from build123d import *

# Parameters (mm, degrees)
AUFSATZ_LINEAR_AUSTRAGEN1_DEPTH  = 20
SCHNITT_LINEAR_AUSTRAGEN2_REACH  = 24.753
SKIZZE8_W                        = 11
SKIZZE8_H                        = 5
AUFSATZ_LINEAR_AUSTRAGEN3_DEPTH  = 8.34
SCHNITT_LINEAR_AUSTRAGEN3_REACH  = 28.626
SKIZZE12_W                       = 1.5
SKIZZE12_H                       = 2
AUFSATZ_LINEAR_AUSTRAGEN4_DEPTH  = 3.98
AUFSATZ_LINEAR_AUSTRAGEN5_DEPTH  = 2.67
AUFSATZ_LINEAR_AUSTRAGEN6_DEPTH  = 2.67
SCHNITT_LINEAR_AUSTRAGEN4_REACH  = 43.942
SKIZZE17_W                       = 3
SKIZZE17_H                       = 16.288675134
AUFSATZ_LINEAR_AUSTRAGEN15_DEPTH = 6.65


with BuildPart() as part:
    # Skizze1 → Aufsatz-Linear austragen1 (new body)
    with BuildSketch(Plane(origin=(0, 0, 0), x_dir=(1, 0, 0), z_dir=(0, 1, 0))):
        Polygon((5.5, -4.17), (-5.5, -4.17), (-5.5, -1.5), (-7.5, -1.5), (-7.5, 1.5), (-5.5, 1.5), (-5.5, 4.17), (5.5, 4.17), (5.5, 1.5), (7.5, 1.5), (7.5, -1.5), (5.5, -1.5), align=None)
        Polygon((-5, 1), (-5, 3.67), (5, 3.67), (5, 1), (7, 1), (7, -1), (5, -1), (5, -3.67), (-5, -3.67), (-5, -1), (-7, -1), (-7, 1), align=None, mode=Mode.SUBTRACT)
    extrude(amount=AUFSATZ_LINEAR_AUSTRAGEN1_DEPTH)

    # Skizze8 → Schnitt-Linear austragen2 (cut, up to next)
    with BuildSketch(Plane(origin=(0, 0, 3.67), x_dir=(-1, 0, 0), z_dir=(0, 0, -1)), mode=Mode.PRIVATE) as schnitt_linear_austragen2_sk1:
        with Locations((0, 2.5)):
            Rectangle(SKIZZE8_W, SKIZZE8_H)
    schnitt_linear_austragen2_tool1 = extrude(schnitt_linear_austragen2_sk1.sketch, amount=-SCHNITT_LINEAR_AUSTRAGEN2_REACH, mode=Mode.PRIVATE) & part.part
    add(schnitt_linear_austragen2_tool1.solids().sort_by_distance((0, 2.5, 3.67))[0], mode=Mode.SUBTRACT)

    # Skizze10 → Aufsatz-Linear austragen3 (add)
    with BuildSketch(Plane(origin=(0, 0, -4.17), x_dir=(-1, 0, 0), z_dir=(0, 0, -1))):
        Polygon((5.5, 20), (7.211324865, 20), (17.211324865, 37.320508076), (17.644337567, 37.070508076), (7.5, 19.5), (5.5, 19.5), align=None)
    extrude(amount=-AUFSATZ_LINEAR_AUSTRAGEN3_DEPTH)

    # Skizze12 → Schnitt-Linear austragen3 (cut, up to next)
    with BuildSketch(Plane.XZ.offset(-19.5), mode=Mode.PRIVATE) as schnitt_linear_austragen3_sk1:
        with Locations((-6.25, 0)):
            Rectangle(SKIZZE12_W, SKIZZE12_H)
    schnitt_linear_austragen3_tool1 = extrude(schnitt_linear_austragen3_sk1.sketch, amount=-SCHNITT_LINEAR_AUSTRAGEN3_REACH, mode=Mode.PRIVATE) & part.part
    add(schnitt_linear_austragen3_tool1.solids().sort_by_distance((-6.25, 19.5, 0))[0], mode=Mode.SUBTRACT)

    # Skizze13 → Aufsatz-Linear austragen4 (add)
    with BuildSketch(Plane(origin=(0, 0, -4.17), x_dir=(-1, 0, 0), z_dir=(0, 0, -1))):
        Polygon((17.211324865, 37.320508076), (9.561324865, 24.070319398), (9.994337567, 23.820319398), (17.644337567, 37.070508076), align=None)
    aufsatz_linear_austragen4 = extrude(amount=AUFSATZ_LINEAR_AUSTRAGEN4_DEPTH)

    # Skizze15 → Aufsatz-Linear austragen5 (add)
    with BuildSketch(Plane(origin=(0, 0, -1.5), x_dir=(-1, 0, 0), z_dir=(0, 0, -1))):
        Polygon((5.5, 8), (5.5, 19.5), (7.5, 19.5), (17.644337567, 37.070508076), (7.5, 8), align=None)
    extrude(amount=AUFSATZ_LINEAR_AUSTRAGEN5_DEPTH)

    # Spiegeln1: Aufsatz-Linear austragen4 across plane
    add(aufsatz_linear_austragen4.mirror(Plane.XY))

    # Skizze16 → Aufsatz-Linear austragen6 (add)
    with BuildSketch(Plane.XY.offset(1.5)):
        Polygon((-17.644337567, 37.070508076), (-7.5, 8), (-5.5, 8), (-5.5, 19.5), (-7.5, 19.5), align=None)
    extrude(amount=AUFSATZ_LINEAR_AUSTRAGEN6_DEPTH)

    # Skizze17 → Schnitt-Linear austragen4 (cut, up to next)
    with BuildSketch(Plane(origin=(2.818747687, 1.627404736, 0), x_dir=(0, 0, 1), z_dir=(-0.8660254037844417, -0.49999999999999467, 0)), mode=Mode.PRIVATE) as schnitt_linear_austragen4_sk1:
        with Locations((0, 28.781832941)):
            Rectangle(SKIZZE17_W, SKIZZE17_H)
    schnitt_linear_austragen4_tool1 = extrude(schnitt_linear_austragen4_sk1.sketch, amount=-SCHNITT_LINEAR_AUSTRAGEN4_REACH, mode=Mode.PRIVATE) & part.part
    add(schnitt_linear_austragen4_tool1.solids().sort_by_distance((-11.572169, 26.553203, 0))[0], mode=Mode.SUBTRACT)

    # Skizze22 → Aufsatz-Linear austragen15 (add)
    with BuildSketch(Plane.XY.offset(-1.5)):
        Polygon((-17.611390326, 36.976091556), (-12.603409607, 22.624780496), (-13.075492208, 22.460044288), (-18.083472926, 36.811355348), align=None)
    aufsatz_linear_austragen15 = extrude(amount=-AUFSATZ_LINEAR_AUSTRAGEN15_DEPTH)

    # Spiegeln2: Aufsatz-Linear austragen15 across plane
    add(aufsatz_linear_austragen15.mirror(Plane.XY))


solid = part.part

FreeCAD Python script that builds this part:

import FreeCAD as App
import Part
import Sketcher

V = App.Vector
Q = App.Units.Quantity

doc = App.newDocument("Part")
body = doc.addObject("PartDesign::Body", "Body")

sketch1 = body.newObject("Sketcher::SketchObject", "Sketch")
sketch1.AttachmentSupport = (doc.getObject("XZ_Plane"), [""])
sketch1.MapMode = "FlatFace"
sketch1.addGeometry([
    Part.LineSegment(V(-5.5, 4.17, 0), V(5.5, 4.17, 0)),
    Part.LineSegment(V(5.5, 4.17, 0), V(5.5, 1.5, 0)),
    Part.LineSegment(V(5.5, 1.5, 0), V(7.5, 1.5, 0)),
    Part.LineSegment(V(7.5, 1.5, 0), V(7.5, -1.5, 0)),
    Part.LineSegment(V(7.5, -1.5, 0), V(5.5, -1.5, 0)),
    Part.LineSegment(V(5.5, -1.5, 0), V(5.5, -4.17, 0)),
    Part.LineSegment(V(5.5, -4.17, 0), V(-5.5, -4.17, 0)),
    Part.LineSegment(V(-5.5, -4.17, 0), V(-5.5, -1.5, 0)),
    Part.LineSegment(V(-5.5, -1.5, 0), V(-7.5, -1.5, 0)),
    Part.LineSegment(V(-7.5, -1.5, 0), V(-7.5, 1.5, 0)),
    Part.LineSegment(V(-7.5, 1.5, 0), V(-5.5, 1.5, 0)),
    Part.LineSegment(V(-5.5, 1.5, 0), V(-5.5, 4.17, 0)),
    Part.LineSegment(V(-5, -1, 0), V(-5, -3.67, 0)),
    Part.LineSegment(V(-5, -3.67, 0), V(5, -3.67, 0)),
    Part.LineSegment(V(5, -3.67, 0), V(5, -1, 0)),
    Part.LineSegment(V(5, -1, 0), V(7, -1, 0)),
    Part.LineSegment(V(7, -1, 0), V(7, 1, 0)),
    Part.LineSegment(V(7, 1, 0), V(5, 1, 0)),
    Part.LineSegment(V(5, 1, 0), V(5, 3.67, 0)),
    Part.LineSegment(V(5, 3.67, 0), V(-5, 3.67, 0)),
    Part.LineSegment(V(-5, 3.67, 0), V(-5, 1, 0)),
    Part.LineSegment(V(-5, 1, 0), V(-7, 1, 0)),
    Part.LineSegment(V(-7, 1, 0), V(-7, -1, 0)),
    Part.LineSegment(V(-7, -1, 0), V(-5, -1, 0)),
], False)
sketch1.addConstraint([
    Sketcher.Constraint("Coincident", 0, 2, 1, 1),
    Sketcher.Constraint("Coincident", 1, 2, 2, 1),
    Sketcher.Constraint("Coincident", 2, 2, 3, 1),
    Sketcher.Constraint("Coincident", 3, 2, 4, 1),
    Sketcher.Constraint("Coincident", 4, 2, 5, 1),
    Sketcher.Constraint("Coincident", 5, 2, 6, 1),
    Sketcher.Constraint("Coincident", 6, 2, 7, 1),
    Sketcher.Constraint("Coincident", 7, 2, 8, 1),
    Sketcher.Constraint("Coincident", 8, 2, 9, 1),
    Sketcher.Constraint("Coincident", 9, 2, 10, 1),
    Sketcher.Constraint("Coincident", 10, 2, 11, 1),
    Sketcher.Constraint("Coincident", 11, 2, 0, 1),
    Sketcher.Constraint("Coincident", 12, 2, 13, 1),
    Sketcher.Constraint("Coincident", 13, 2, 14, 1),
    Sketcher.Constraint("Coincident", 14, 2, 15, 1),
    Sketcher.Constraint("Coincident", 15, 2, 16, 1),
    Sketcher.Constraint("Coincident", 16, 2, 17, 1),
    Sketcher.Constraint("Coincident", 17, 2, 18, 1),
    Sketcher.Constraint("Coincident", 18, 2, 19, 1),
    Sketcher.Constraint("Coincident", 19, 2, 20, 1),
    Sketcher.Constraint("Coincident", 20, 2, 21, 1),
    Sketcher.Constraint("Coincident", 21, 2, 22, 1),
    Sketcher.Constraint("Coincident", 22, 2, 23, 1),
    Sketcher.Constraint("Coincident", 23, 2, 12, 1),
    Sketcher.Constraint("Horizontal", 0),
    Sketcher.Constraint("Vertical", 1),
    Sketcher.Constraint("Horizontal", 2),
    Sketcher.Constraint("Vertical", 3),
    Sketcher.Constraint("Horizontal", 4),
    Sketcher.Constraint("Vertical", 5),
    Sketcher.Constraint("Horizontal", 6),
    Sketcher.Constraint("Vertical", 7),
    Sketcher.Constraint("Horizontal", 8),
    Sketcher.Constraint("Vertical", 9),
    Sketcher.Constraint("Horizontal", 10),
    Sketcher.Constraint("Vertical", 11),
    Sketcher.Constraint("Vertical", 12),
    Sketcher.Constraint("Horizontal", 13),
    Sketcher.Constraint("Vertical", 14),
    Sketcher.Constraint("Horizontal", 15),
    Sketcher.Constraint("Vertical", 16),
    Sketcher.Constraint("Horizontal", 17),
    Sketcher.Constraint("Vertical", 18),
    Sketcher.Constraint("Horizontal", 19),
    Sketcher.Constraint("Vertical", 20),
    Sketcher.Constraint("Horizontal", 21),
    Sketcher.Constraint("Vertical", 22),
    Sketcher.Constraint("Horizontal", 23),
    Sketcher.Constraint("Symmetric", 0, 2, 6, 2, -1, 1),
    Sketcher.Constraint("Symmetric", 2, 2, 8, 2, -1, 1),
    Sketcher.Constraint("Symmetric", 4, 2, 10, 2, -1, 1),
    Sketcher.Constraint("Symmetric", 12, 2, 18, 2, -1, 1),
    Sketcher.Constraint("Symmetric", 14, 2, 20, 2, -1, 1),
    Sketcher.Constraint("Symmetric", 16, 2, 22, 2, -1, 1),
    Sketcher.Constraint("Symmetric", 4, 2, 7, 2, -2),
    Sketcher.Constraint("Symmetric", 17, 2, 20, 2, -2),
    Sketcher.Constraint("Equal", 10, 15),
    Sketcher.Constraint("Equal", 11, 12),
    Sketcher.Constraint("Equal", 23, 16),
    Sketcher.Constraint("DistanceX", 0, 1, 0, 2, Q("11 mm")),
    Sketcher.Constraint("DistanceX", 2, 1, 2, 2, Q("2 mm")),
    Sketcher.Constraint("DistanceX", 13, 1, 13, 2, Q("10 mm")),
    Sketcher.Constraint("DistanceY", 3, 2, 3, 1, Q("3 mm")),
    Sketcher.Constraint("DistanceY", 1, 2, 1, 1, Q("2.67 mm")),
])
pad1 = body.newObject("PartDesign::Pad", "Pad")
pad1.Profile = sketch1
pad1.Length = 20
pad1.Reversed = True

sketch2 = body.newObject("Sketcher::SketchObject", "Sketch001")
sketch2.AttachmentSupport = (doc.getObject("XY_Plane"), [""])
sketch2.MapMode = "FlatFace"
sketch2.AttachmentOffset = App.Placement(V(0, 0, 3.67), App.Rotation())
sketch2.addGeometry([
    Part.LineSegment(V(5.5, 5, 0), V(5.5, 0, 0)),
    Part.LineSegment(V(5.5, 0, 0), V(-5.5, 0, 0)),
    Part.LineSegment(V(-5.5, 0, 0), V(-5.5, 5, 0)),
    Part.LineSegment(V(-5.5, 5, 0), V(5.5, 5, 0)),
], False)
sketch2.addConstraint([
    Sketcher.Constraint("Coincident", 0, 2, 1, 1),
    Sketcher.Constraint("Coincident", 1, 2, 2, 1),
    Sketcher.Constraint("Coincident", 2, 2, 3, 1),
    Sketcher.Constraint("Coincident", 3, 2, 0, 1),
    Sketcher.Constraint("Vertical", 0),
    Sketcher.Constraint("Horizontal", 1),
    Sketcher.Constraint("Vertical", 2),
    Sketcher.Constraint("Horizontal", 3),
    Sketcher.Constraint("Symmetric", 0, 2, 1, 2, -1, 1),
    Sketcher.Constraint("DistanceX", 1, 2, 1, 1, Q("11 mm")),
    Sketcher.Constraint("DistanceY", 0, 2, 0, 1, Q("5 mm")),
])
pocket1 = body.newObject("PartDesign::Pocket", "Pocket")
pocket1.Profile = sketch2
pocket1.Type = "UpToFirst"
pocket1.Reversed = True

sketch3 = body.newObject("Sketcher::SketchObject", "Sketch002")
sketch3.AttachmentSupport = (doc.getObject("XY_Plane"), [""])
sketch3.MapMode = "FlatFace"
sketch3.AttachmentOffset = App.Placement(V(0, 0, -4.17), App.Rotation())
sketch3.addGeometry([
    Part.LineSegment(V(-7.211325, 20, 0), V(-5.5, 20, 0)),
    Part.LineSegment(V(-5.5, 20, 0), V(-5.5, 19.5, 0)),
    Part.LineSegment(V(-5.5, 19.5, 0), V(-7.5, 19.5, 0)),
    Part.LineSegment(V(-7.5, 19.5, 0), V(-17.644338, 37.070508, 0)),
    Part.LineSegment(V(-17.644338, 37.070508, 0), V(-17.211325, 37.320508, 0)),
    Part.LineSegment(V(-17.211325, 37.320508, 0), V(-7.211325, 20, 0)),
], False)
sketch3.addConstraint([
    Sketcher.Constraint("Coincident", 0, 2, 1, 1),
    Sketcher.Constraint("Coincident", 1, 2, 2, 1),
    Sketcher.Constraint("Coincident", 2, 2, 3, 1),
    Sketcher.Constraint("Coincident", 3, 2, 4, 1),
    Sketcher.Constraint("Coincident", 4, 2, 5, 1),
    Sketcher.Constraint("Coincident", 5, 2, 0, 1),
    Sketcher.Constraint("Horizontal", 0),
    Sketcher.Constraint("Vertical", 1),
    Sketcher.Constraint("Horizontal", 2),
    Sketcher.Constraint("Perpendicular", 3, 4),
    Sketcher.Constraint("Perpendicular", 4, 5),
    Sketcher.Constraint("DistanceX", 2, 2, 2, 1, Q("2 mm")),
    Sketcher.Constraint("Angle", 3, Q("120 deg")),
    Sketcher.Constraint("Distance", 5, Q("20 mm")),
    Sketcher.Constraint("DistanceY", 1, 2, 1, 1, Q("0.5 mm")),
    Sketcher.Constraint("DistanceY", -1, 1, 0, 2, Q("20 mm")),
    Sketcher.Constraint("Distance", 4, Q("0.5 mm")),
    Sketcher.Constraint("DistanceX", 0, 2, -1, 1, Q("5.5 mm")),
])
pad2 = body.newObject("PartDesign::Pad", "Pad001")
pad2.Profile = sketch3
pad2.Length = 8.34

sketch4 = body.newObject("Sketcher::SketchObject", "Sketch003")
sketch4.AttachmentSupport = (doc.getObject("XZ_Plane"), [""])
sketch4.MapMode = "FlatFace"
sketch4.AttachmentOffset = App.Placement(V(0, 0, -19.5), App.Rotation())
sketch4.addGeometry([
    Part.LineSegment(V(-7, 1, 0), V(-7, -1, 0)),
    Part.LineSegment(V(-7, -1, 0), V(-5.5, -1, 0)),
    Part.LineSegment(V(-5.5, -1, 0), V(-5.5, 1, 0)),
    Part.LineSegment(V(-5.5, 1, 0), V(-7, 1, 0)),
], False)
sketch4.addConstraint([
    Sketcher.Constraint("Coincident", 0, 2, 1, 1),
    Sketcher.Constraint("Coincident", 1, 2, 2, 1),
    Sketcher.Constraint("Coincident", 2, 2, 3, 1),
    Sketcher.Constraint("Coincident", 3, 2, 0, 1),
    Sketcher.Constraint("Vertical", 0),
    Sketcher.Constraint("Horizontal", 1),
    Sketcher.Constraint("Vertical", 2),
    Sketcher.Constraint("Horizontal", 3),
    Sketcher.Constraint("DistanceY", 0, 2, 0, 1, Q("2 mm")),
    Sketcher.Constraint("DistanceX", 1, 1, 1, 2, Q("1.5 mm")),
    Sketcher.Constraint("DistanceX", 0, 2, -1, 1, Q("7 mm")),
    Sketcher.Constraint("DistanceY", 0, 2, -1, 1, Q("1 mm")),
])
pocket2 = body.newObject("PartDesign::Pocket", "Pocket001")
pocket2.Profile = sketch4
pocket2.Type = "UpToFirst"

sketch5 = body.newObject("Sketcher::SketchObject", "Sketch004")
sketch5.AttachmentSupport = (doc.getObject("XY_Plane"), [""])
sketch5.MapMode = "FlatFace"
sketch5.AttachmentOffset = App.Placement(V(0, 0, -4.17), App.Rotation())
sketch5.addGeometry([
    Part.LineSegment(V(-17.211325, 37.320508, 0), V(-9.561325, 24.070319, 0)),
    Part.LineSegment(V(-9.561325, 24.070319, 0), V(-9.994338, 23.820319, 0)),
    Part.LineSegment(V(-9.994338, 23.820319, 0), V(-17.644338, 37.070508, 0)),
    Part.LineSegment(V(-17.644338, 37.070508, 0), V(-17.211325, 37.320508, 0)),
], False)
sketch5.addConstraint([
    Sketcher.Constraint("Coincident", 0, 2, 1, 1),
    Sketcher.Constraint("Coincident", 1, 2, 2, 1),
    Sketcher.Constraint("Coincident", 2, 2, 3, 1),
    Sketcher.Constraint("Coincident", 3, 2, 0, 1),
    Sketcher.Constraint("Perpendicular", 0, 1),
    Sketcher.Constraint("Perpendicular", 1, 2),
    Sketcher.Constraint("Perpendicular", 2, 3),
    Sketcher.Constraint("Angle", 0, Q("-60 deg")),
    Sketcher.Constraint("Distance", 0, Q("15.3 mm")),
    Sketcher.Constraint("Distance", 1, Q("0.5 mm")),
    Sketcher.Constraint("DistanceY", -1, 1, 0, 2, Q("24.070319 mm")),
    Sketcher.Constraint("DistanceX", 0, 2, -1, 1, Q("9.561325 mm")),
])
pad3 = body.newObject("PartDesign::Pad", "Pad002")
pad3.Profile = sketch5
pad3.Length = 3.98
pad3.Reversed = True

sketch6 = body.newObject("Sketcher::SketchObject", "Sketch005")
sketch6.AttachmentSupport = (doc.getObject("XY_Plane"), [""])
sketch6.MapMode = "FlatFace"
sketch6.AttachmentOffset = App.Placement(V(0, 0, -1.5), App.Rotation())
sketch6.addGeometry([
    Part.LineSegment(V(-5.5, 19.5, 0), V(-5.5, 8, 0)),
    Part.LineSegment(V(-5.5, 8, 0), V(-7.5, 8, 0)),
    Part.LineSegment(V(-7.5, 8, 0), V(-17.644338, 37.070508, 0)),
    Part.LineSegment(V(-17.644338, 37.070508, 0), V(-7.5, 19.5, 0)),
    Part.LineSegment(V(-7.5, 19.5, 0), V(-5.5, 19.5, 0)),
], False)
sketch6.addConstraint([
    Sketcher.Constraint("Coincident", 0, 2, 1, 1),
    Sketcher.Constraint("Coincident", 1, 2, 2, 1),
    Sketcher.Constraint("Coincident", 2, 2, 3, 1),
    Sketcher.Constraint("Coincident", 3, 2, 4, 1),
    Sketcher.Constraint("Coincident", 4, 2, 0, 1),
    Sketcher.Constraint("Vertical", 0),
    Sketcher.Constraint("Horizontal", 1),
    Sketcher.Constraint("Horizontal", 4),
    Sketcher.Constraint("Vertical", 1, 2, 3, 2),
    Sketcher.Constraint("DistanceX", 1, 2, 1, 1, Q("2 mm")),
    Sketcher.Constraint("Angle", 3, Q("-60 deg")),
    Sketcher.Constraint("DistanceY", 0, 2, 0, 1, Q("11.5 mm")),
    Sketcher.Constraint("DistanceY", -1, 1, 0, 2, Q("8 mm")),
    Sketcher.Constraint("DistanceX", 0, 2, -1, 1, Q("5.5 mm")),
    Sketcher.Constraint("Distance", 2, Q("30.789642 mm")),
])
pad4 = body.newObject("PartDesign::Pad", "Pad003")
pad4.Profile = sketch6
pad4.Length = 2.67
pad4.Reversed = True
doc.recompute()

mirrored = body.newObject("PartDesign::Mirrored", "Mirrored")
mirrored.Originals = [pad3]
mirrored.MirrorPlane = (doc.getObject("XY_Plane"), [""])
body.Tip = mirrored

sketch7 = body.newObject("Sketcher::SketchObject", "Sketch006")
sketch7.AttachmentSupport = (doc.getObject("XY_Plane"), [""])
sketch7.MapMode = "FlatFace"
sketch7.AttachmentOffset = App.Placement(V(0, 0, 1.5), App.Rotation())
sketch7.addGeometry([
    Part.LineSegment(V(-17.644338, 37.070508, 0), V(-7.5, 8, 0)),
    Part.LineSegment(V(-7.5, 8, 0), V(-5.5, 8, 0)),
    Part.LineSegment(V(-5.5, 8, 0), V(-5.5, 19.5, 0)),
    Part.LineSegment(V(-5.5, 19.5, 0), V(-7.5, 19.5, 0)),
    Part.LineSegment(V(-7.5, 19.5, 0), V(-17.644338, 37.070508, 0)),
], False)
sketch7.addConstraint([
    Sketcher.Constraint("Coincident", 0, 2, 1, 1),
    Sketcher.Constraint("Coincident", 1, 2, 2, 1),
    Sketcher.Constraint("Coincident", 2, 2, 3, 1),
    Sketcher.Constraint("Coincident", 3, 2, 4, 1),
    Sketcher.Constraint("Coincident", 4, 2, 0, 1),
    Sketcher.Constraint("Horizontal", 1),
    Sketcher.Constraint("Vertical", 2),
    Sketcher.Constraint("Horizontal", 3),
    Sketcher.Constraint("Vertical", 0, 2, 3, 2),
    Sketcher.Constraint("DistanceX", 1, 1, 1, 2, Q("2 mm")),
    Sketcher.Constraint("Angle", 4, Q("120 deg")),
    Sketcher.Constraint("DistanceY", 2, 1, 2, 2, Q("11.5 mm")),
    Sketcher.Constraint("DistanceY", -1, 1, 0, 2, Q("8 mm")),
    Sketcher.Constraint("DistanceX", 0, 2, -1, 1, Q("7.5 mm")),
    Sketcher.Constraint("Distance", 0, Q("30.789642 mm")),
])
pad5 = body.newObject("PartDesign::Pad", "Pad004")
pad5.Profile = sketch7
pad5.Length = 2.67

sketch8 = body.newObject("Sketcher::SketchObject", "Sketch007")
sketch8.Placement = App.Placement(V(2.818748, 1.627405, 0), App.Rotation(V(0, 0, 1), V(-0.5, 0.866025404, 0), V(-0.866025404, -0.5, 0), "ZXY"))
sketch8.addGeometry([
    Part.LineSegment(V(-1.5, 36.926171, 0), V(-1.5, 20.637495, 0)),
    Part.LineSegment(V(-1.5, 20.637495, 0), V(1.5, 20.637495, 0)),
    Part.LineSegment(V(1.5, 20.637495, 0), V(1.5, 36.926171, 0)),
    Part.LineSegment(V(1.5, 36.926171, 0), V(-1.5, 36.926171, 0)),
], False)
sketch8.addConstraint([
    Sketcher.Constraint("Coincident", 0, 2, 1, 1),
    Sketcher.Constraint("Coincident", 1, 2, 2, 1),
    Sketcher.Constraint("Coincident", 2, 2, 3, 1),
    Sketcher.Constraint("Coincident", 3, 2, 0, 1),
    Sketcher.Constraint("Vertical", 0),
    Sketcher.Constraint("Horizontal", 1),
    Sketcher.Constraint("Vertical", 2),
    Sketcher.Constraint("Horizontal", 3),
    Sketcher.Constraint("DistanceX", 1, 1, 1, 2, Q("3 mm")),
    Sketcher.Constraint("DistanceX", 0, 2, -1, 1, Q("1.5 mm")),
    Sketcher.Constraint("DistanceY", 0, 2, 0, 1, Q("16.288675 mm")),
    Sketcher.Constraint("DistanceY", -1, 1, 2, 2, Q("36.926171 mm")),
])
pocket3 = body.newObject("PartDesign::Pocket", "Pocket002")
pocket3.Profile = sketch8
pocket3.Length = 1

sketch9 = body.newObject("Sketcher::SketchObject", "Sketch008")
sketch9.AttachmentSupport = (doc.getObject("XY_Plane"), [""])
sketch9.MapMode = "FlatFace"
sketch9.AttachmentOffset = App.Placement(V(0, 0, -1.5), App.Rotation())
sketch9.addGeometry([
    Part.LineSegment(V(-12.60341, 22.62478, 0), V(-17.61139, 36.976092, 0)),
    Part.LineSegment(V(-17.61139, 36.976092, 0), V(-18.083473, 36.811355, 0)),
    Part.LineSegment(V(-18.083473, 36.811355, 0), V(-13.075492, 22.460044, 0)),
    Part.LineSegment(V(-13.075492, 22.460044, 0), V(-12.60341, 22.62478, 0)),
], False)
sketch9.addConstraint([
    Sketcher.Constraint("Coincident", 0, 2, 1, 1),
    Sketcher.Constraint("Coincident", 1, 2, 2, 1),
    Sketcher.Constraint("Coincident", 2, 2, 3, 1),
    Sketcher.Constraint("Coincident", 3, 2, 0, 1),
    Sketcher.Constraint("Perpendicular", 0, 1),
    Sketcher.Constraint("Perpendicular", 1, 2),
    Sketcher.Constraint("Perpendicular", 2, 3),
    Sketcher.Constraint("Distance", 0, Q("15.2 mm")),
    Sketcher.Constraint("Distance", 1, Q("0.5 mm")),
    Sketcher.Constraint("DistanceX", 0, 2, 2, 2, Q("4.535898 mm")),
    Sketcher.Constraint("DistanceX", 0, 2, -1, 1, Q("17.61139 mm")),
    Sketcher.Constraint("DistanceY", -1, 1, 0, 2, Q("36.976092 mm")),
])
pad6 = body.newObject("PartDesign::Pad", "Pad005")
pad6.Profile = sketch9
pad6.Length = 6.65
pad6.Reversed = True
doc.recompute()

mirrored2 = body.newObject("PartDesign::Mirrored", "Mirrored001")
mirrored2.Originals = [pad6]
mirrored2.MirrorPlane = (doc.getObject("XY_Plane"), [""])
body.Tip = mirrored2

doc.recompute()
